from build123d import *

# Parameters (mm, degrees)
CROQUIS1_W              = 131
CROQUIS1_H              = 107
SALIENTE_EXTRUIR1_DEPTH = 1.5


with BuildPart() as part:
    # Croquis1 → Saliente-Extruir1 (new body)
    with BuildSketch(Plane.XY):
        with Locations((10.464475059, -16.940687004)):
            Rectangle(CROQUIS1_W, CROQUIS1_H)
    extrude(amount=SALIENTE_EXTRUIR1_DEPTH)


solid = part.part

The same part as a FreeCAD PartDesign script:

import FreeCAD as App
import Part
import Sketcher

V = App.Vector
Q = App.Units.Quantity

doc = App.newDocument("Part")
body = doc.addObject("PartDesign::Body", "Body")

# Sketch on XY plane
sketch1 = body.newObject("Sketcher::SketchObject", "Sketch")
sketch1.AttachmentSupport = (doc.getObject("XY_Plane"), [""])
sketch1.MapMode = "FlatFace"
sketch1.addGeometry(Part.LineSegment(V(-55, 37, 0), V(-55, -70, 0)), False)
sketch1.addGeometry(Part.LineSegment(V(-55, -70, 0), V(76, -70, 0)), False)
sketch1.addGeometry(Part.LineSegment(V(76, -70, 0), V(76, 37, 0)), False)
sketch1.addGeometry(Part.LineSegment(V(76, 37, 0), V(-55, 37, 0)), False)
sketch1.addConstraint(Sketcher.Constraint("Coincident", 0, 2, 1, 1))
sketch1.addConstraint(Sketcher.Constraint("Coincident", 1, 2, 2, 1))
sketch1.addConstraint(Sketcher.Constraint("Coincident", 2, 2, 3, 1))
sketch1.addConstraint(Sketcher.Constraint("Coincident", 3, 2, 0, 1))
sketch1.addConstraint(Sketcher.Constraint("Vertical", 0))
sketch1.addConstraint(Sketcher.Constraint("Horizontal", 1))
sketch1.addConstraint(Sketcher.Constraint("Vertical", 2))
sketch1.addConstraint(Sketcher.Constraint("Horizontal", 3))
sketch1.addConstraint(Sketcher.Constraint("DistanceX", 1, 1, 1, 2, Q("131 mm")))
sketch1.addConstraint(Sketcher.Constraint("DistanceY", 0, 2, 0, 1, Q("107 mm")))
sketch1.addConstraint(Sketcher.Constraint("DistanceX", 0, 2, -1, 1, Q("55.035525 mm")))
sketch1.addConstraint(Sketcher.Constraint("DistanceY", 0, 2, -1, 1, Q("70.440687 mm")))
pad1 = body.newObject("PartDesign::Pad", "Pad")
pad1.Profile = sketch1
pad1.Length = 1.5

doc.recompute()
